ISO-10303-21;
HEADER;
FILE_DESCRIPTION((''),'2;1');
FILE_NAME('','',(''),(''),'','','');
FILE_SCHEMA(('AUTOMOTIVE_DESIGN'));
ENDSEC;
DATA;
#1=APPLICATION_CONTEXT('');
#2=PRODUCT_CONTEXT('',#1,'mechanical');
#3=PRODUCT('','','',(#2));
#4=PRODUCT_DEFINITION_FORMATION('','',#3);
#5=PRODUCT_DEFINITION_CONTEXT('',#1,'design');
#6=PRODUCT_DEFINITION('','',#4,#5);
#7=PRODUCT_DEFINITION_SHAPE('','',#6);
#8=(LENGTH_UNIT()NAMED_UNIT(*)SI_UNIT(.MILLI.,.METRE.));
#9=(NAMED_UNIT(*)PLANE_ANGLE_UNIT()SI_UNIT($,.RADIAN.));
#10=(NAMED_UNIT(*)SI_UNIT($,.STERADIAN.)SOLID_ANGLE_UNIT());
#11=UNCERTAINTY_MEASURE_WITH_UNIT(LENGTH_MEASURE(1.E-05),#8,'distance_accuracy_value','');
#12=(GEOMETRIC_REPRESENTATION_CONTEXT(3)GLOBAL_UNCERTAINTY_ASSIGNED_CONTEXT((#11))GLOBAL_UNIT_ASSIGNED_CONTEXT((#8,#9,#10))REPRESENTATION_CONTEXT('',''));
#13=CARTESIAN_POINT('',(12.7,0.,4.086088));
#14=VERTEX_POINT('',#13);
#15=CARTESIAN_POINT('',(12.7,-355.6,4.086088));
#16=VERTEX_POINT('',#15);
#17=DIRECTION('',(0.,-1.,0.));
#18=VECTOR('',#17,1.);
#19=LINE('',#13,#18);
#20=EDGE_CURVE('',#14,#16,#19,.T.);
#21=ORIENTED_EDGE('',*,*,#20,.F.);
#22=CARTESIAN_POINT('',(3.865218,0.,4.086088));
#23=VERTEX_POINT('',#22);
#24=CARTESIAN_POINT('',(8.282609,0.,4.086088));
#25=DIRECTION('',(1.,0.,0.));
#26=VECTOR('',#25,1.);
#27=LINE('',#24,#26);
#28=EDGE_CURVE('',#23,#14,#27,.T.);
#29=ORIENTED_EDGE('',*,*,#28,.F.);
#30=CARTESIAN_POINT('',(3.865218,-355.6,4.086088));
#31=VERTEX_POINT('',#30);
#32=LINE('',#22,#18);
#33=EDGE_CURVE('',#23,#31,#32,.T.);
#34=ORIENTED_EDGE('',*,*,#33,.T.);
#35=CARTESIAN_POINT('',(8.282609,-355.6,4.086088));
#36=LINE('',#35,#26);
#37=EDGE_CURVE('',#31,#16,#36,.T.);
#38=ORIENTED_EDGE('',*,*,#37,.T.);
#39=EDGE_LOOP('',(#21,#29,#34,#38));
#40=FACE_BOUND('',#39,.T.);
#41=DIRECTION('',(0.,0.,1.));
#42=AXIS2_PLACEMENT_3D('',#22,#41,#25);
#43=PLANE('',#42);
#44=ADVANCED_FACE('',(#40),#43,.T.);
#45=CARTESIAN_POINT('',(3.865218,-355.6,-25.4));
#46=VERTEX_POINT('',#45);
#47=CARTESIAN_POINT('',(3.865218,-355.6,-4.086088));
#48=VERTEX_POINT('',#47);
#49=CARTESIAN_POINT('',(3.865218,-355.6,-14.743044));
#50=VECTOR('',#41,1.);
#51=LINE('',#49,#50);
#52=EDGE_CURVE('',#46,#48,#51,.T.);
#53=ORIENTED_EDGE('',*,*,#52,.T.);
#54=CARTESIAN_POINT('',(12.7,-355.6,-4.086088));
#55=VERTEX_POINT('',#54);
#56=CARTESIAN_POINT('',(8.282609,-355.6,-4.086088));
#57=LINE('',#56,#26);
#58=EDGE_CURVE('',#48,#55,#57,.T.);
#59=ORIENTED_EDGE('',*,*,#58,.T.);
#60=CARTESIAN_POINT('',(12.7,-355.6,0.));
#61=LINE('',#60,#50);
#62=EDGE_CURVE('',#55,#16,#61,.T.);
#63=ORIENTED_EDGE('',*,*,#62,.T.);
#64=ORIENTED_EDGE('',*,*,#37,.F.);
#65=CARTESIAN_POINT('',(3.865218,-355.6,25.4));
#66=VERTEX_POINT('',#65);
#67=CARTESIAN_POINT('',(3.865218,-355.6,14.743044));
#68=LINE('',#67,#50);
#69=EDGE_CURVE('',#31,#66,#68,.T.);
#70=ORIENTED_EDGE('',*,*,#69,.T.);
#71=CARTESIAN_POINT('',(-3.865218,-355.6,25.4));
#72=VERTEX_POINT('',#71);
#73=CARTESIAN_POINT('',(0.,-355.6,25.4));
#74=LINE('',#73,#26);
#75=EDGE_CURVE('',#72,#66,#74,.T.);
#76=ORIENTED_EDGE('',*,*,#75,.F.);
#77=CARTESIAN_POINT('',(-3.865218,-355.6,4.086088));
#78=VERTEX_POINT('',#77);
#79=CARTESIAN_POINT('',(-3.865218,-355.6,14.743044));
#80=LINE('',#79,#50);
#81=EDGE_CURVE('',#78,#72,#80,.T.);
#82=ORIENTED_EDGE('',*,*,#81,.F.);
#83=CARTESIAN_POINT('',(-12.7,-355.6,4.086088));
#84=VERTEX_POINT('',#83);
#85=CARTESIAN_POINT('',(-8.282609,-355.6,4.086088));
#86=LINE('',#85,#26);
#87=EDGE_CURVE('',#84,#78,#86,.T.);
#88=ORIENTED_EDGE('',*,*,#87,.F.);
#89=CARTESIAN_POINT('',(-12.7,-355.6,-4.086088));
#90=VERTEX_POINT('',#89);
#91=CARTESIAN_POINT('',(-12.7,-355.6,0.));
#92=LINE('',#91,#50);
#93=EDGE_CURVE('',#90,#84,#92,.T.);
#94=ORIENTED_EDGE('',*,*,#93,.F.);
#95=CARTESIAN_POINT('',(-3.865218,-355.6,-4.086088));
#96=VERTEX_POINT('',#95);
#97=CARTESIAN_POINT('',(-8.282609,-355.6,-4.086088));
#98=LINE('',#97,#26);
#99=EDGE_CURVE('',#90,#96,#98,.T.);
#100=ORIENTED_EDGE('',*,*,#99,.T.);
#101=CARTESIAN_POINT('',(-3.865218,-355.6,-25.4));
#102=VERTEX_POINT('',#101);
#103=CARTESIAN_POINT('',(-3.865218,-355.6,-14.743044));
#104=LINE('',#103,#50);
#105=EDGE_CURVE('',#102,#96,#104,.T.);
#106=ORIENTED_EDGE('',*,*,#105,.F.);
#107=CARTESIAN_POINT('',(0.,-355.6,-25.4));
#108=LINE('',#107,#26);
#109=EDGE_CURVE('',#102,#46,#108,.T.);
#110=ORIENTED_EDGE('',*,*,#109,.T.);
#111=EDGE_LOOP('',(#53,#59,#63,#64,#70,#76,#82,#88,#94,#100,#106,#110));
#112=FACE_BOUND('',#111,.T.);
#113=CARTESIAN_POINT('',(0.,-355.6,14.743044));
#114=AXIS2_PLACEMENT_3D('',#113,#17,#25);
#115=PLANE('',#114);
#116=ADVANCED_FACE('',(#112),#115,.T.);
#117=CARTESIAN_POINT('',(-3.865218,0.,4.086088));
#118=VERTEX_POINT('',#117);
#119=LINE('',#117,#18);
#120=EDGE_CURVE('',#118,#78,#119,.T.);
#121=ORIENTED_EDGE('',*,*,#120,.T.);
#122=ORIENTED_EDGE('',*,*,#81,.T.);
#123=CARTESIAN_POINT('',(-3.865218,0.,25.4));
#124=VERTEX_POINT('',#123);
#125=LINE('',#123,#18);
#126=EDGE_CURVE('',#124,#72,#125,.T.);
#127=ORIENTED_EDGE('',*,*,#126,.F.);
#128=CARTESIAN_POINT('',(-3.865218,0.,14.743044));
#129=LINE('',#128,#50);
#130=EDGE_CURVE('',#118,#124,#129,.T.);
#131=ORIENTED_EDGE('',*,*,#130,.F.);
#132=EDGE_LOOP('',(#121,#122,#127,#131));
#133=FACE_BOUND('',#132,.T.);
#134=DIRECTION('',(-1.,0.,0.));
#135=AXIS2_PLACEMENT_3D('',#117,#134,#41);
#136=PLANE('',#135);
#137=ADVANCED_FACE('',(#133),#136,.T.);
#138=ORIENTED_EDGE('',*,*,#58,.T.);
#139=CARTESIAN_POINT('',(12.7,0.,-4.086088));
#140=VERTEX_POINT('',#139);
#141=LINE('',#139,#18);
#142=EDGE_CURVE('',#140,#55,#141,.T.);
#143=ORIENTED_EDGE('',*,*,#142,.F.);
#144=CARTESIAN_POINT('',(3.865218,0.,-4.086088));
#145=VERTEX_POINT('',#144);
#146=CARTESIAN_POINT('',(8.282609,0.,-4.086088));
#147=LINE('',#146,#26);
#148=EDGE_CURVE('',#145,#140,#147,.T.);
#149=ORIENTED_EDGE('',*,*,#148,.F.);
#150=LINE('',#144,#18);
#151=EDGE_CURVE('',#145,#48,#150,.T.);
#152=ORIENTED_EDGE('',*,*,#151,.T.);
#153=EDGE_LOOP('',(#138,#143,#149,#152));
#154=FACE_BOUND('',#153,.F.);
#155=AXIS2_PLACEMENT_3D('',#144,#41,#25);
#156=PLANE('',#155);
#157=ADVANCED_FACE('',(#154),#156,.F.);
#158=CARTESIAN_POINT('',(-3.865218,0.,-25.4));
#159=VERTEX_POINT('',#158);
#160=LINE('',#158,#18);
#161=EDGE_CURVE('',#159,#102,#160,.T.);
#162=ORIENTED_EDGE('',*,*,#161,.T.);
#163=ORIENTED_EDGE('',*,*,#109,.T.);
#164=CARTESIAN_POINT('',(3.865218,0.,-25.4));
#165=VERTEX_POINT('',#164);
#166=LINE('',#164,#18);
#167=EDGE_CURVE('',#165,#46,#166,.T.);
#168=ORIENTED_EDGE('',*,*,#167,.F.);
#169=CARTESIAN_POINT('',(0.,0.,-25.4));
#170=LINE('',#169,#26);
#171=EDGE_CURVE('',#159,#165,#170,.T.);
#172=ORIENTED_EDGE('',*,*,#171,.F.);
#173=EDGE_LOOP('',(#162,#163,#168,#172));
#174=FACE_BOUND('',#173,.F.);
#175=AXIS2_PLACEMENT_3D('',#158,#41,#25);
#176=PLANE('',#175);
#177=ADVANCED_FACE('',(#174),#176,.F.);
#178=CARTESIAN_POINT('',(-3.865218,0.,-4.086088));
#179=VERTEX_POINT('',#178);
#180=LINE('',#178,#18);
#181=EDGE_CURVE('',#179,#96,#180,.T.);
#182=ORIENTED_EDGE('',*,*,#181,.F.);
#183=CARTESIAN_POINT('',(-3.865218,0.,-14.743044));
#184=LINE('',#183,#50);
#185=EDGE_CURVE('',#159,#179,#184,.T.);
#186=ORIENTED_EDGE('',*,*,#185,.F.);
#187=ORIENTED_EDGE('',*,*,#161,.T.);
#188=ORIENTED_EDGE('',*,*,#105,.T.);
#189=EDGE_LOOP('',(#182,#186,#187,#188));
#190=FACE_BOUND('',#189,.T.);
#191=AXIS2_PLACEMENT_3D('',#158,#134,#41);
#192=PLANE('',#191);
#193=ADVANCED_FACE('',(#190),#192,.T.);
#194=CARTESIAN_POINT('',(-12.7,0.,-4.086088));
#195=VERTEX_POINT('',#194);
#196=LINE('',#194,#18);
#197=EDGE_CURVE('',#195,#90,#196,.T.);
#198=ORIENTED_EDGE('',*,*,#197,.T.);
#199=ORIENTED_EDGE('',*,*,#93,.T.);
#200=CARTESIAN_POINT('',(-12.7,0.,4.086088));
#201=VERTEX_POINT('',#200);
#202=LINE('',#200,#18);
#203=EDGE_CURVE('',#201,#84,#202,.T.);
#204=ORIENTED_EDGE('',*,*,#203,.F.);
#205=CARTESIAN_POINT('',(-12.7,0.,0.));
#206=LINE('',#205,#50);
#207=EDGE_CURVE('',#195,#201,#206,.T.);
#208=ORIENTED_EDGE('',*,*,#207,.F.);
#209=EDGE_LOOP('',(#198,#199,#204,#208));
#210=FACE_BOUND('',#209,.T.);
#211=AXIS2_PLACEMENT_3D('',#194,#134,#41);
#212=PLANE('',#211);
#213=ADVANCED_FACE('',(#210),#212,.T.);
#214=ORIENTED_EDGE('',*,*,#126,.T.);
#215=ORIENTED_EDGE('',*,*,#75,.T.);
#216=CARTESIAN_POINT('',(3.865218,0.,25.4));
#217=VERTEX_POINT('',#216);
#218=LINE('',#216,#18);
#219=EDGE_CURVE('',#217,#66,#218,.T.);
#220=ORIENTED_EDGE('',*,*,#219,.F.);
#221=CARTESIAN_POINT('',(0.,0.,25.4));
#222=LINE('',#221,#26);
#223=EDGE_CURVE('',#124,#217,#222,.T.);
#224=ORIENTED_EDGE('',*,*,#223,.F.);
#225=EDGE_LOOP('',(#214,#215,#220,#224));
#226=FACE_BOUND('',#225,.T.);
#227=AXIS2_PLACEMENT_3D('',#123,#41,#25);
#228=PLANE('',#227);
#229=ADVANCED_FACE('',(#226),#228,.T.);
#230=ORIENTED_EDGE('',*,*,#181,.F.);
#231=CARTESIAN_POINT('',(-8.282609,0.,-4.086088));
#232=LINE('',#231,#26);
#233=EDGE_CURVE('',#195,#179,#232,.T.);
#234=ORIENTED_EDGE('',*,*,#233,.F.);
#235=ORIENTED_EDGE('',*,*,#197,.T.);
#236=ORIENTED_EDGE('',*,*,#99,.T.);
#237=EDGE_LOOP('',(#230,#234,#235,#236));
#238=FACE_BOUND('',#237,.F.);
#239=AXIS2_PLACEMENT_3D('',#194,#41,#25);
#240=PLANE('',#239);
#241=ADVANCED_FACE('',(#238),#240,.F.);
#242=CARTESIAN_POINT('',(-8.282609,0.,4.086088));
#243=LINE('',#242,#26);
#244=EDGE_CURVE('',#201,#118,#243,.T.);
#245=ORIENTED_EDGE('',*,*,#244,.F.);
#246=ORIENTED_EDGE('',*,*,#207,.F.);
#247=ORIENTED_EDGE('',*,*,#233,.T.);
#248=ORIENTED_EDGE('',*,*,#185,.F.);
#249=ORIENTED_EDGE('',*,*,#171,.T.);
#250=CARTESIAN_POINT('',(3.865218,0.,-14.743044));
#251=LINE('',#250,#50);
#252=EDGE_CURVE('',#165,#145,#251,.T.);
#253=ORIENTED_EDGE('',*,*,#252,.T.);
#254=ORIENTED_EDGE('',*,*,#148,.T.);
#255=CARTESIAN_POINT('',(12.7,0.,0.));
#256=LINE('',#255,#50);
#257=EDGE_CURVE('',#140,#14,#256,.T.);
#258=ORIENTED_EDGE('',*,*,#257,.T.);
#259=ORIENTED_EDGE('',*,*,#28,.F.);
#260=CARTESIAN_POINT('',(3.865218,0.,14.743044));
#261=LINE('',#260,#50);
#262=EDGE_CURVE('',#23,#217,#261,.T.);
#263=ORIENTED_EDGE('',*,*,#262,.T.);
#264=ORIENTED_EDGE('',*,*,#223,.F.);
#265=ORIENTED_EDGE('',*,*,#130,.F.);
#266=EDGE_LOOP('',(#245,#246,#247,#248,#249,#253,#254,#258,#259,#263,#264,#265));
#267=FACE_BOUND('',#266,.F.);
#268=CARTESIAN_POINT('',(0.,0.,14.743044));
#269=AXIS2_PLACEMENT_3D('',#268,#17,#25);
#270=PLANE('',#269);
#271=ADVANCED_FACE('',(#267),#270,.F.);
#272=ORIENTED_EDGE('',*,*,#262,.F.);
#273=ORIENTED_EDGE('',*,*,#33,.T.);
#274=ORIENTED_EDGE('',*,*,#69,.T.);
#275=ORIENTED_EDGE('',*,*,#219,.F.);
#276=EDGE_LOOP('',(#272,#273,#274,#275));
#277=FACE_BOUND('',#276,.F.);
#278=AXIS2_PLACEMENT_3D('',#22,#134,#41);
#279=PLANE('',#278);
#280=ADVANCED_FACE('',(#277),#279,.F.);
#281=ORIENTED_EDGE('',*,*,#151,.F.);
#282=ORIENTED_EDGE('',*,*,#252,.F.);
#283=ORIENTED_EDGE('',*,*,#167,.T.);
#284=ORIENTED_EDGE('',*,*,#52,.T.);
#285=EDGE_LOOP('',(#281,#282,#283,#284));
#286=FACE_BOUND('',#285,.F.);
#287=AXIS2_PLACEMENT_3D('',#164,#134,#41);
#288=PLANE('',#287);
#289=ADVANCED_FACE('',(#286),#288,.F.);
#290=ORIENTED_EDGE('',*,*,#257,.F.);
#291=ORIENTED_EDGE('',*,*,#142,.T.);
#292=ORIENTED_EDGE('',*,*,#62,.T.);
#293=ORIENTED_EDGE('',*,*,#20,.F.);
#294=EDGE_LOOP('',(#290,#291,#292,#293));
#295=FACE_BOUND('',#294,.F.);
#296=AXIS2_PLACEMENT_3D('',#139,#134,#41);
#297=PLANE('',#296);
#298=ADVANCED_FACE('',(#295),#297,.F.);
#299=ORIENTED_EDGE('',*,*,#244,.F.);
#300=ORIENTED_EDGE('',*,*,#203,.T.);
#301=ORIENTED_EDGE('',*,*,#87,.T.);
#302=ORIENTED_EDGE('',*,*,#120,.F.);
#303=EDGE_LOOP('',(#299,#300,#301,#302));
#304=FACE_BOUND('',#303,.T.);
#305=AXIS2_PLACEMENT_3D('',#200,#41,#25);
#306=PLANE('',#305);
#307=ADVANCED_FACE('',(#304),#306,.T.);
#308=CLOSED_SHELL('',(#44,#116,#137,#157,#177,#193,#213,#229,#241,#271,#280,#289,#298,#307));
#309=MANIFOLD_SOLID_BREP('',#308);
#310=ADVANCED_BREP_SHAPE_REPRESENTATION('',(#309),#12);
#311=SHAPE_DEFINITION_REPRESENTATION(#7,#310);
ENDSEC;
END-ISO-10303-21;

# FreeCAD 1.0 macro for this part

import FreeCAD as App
import Part
import Sketcher
from FreeCAD import Vector
Q = App.Units.Quantity

doc = App.newDocument("Part")
params = doc.addObject("Spreadsheet::Sheet", "Params")
for row, (alias, value) in enumerate([
    ("pad1_length", "14 in"),
], start=1):
    params.set(f"A{row}", alias)
    params.set(f"B{row}", "=" + value)
    params.setAlias(f"B{row}", alias)

body = doc.addObject("PartDesign::Body", "Body")

sketch1 = body.newObject("Sketcher::SketchObject", "Sketch")
sketch1.AttachmentSupport = (doc.getObject("XZ_Plane"), [""])
sketch1.MapMode = "FlatFace"
sketch1.addGeometry([
    Part.LineSegment(Vector(-4, 25, 0), Vector(-4, 4, 0)),
    Part.LineSegment(Vector(-4, 4, 0), Vector(-13, 4, 0)),
    Part.LineSegment(Vector(-13, 4, 0), Vector(-13, -4, 0)),
    Part.LineSegment(Vector(-13, -4, 0), Vector(-4, -4, 0)),
    Part.LineSegment(Vector(-4, -4, 0), Vector(-4, -25, 0)),
    Part.LineSegment(Vector(-4, -25, 0), Vector(4, -25, 0)),
    Part.LineSegment(Vector(4, -25, 0), Vector(4, -4, 0)),
    Part.LineSegment(Vector(4, -4, 0), Vector(13, -4, 0)),
    Part.LineSegment(Vector(13, -4, 0), Vector(13, 4, 0)),
    Part.LineSegment(Vector(13, 4, 0), Vector(4, 4, 0)),
    Part.LineSegment(Vector(4, 4, 0), Vector(4, 25, 0)),
    Part.LineSegment(Vector(4, 25, 0), Vector(-4, 25, 0)),
], False)
sketch1.addConstraint([
    Sketcher.Constraint("Coincident", 0, 2, 1, 1),
    Sketcher.Constraint("Coincident", 1, 2, 2, 1),
    Sketcher.Constraint("Coincident", 2, 2, 3, 1),
    Sketcher.Constraint("Coincident", 3, 2, 4, 1),
    Sketcher.Constraint("Coincident", 4, 2, 5, 1),
    Sketcher.Constraint("Coincident", 5, 2, 6, 1),
    Sketcher.Constraint("Coincident", 6, 2, 7, 1),
    Sketcher.Constraint("Coincident", 7, 2, 8, 1),
    Sketcher.Constraint("Coincident", 8, 2, 9, 1),
    Sketcher.Constraint("Coincident", 9, 2, 10, 1),
    Sketcher.Constraint("Coincident", 10, 2, 11, 1),
    Sketcher.Constraint("Coincident", 11, 2, 0, 1),
    Sketcher.Constraint("Vertical", 0),
    Sketcher.Constraint("Horizontal", 1),
    Sketcher.Constraint("Vertical", 2),
    Sketcher.Constraint("Horizontal", 3),
    Sketcher.Constraint("Vertical", 4),
    Sketcher.Constraint("Horizontal", 5),
    Sketcher.Constraint("Vertical", 6),
    Sketcher.Constraint("Horizontal", 7),
    Sketcher.Constraint("Vertical", 8),
    Sketcher.Constraint("Horizontal", 9),
    Sketcher.Constraint("Vertical", 10),
    Sketcher.Constraint("Horizontal", 11),
    Sketcher.Constraint("Symmetric", 0, 2, 6, 2, -1, 1),
    Sketcher.Constraint("Symmetric", 2, 2, 8, 2, -1, 1),
    Sketcher.Constraint("Symmetric", 4, 2, 10, 2, -1, 1),
    Sketcher.Constraint("Symmetric", 3, 2, 6, 2, -2),
    Sketcher.Constraint("DistanceY", 4, 2, -1, 1, Q("1 in")),
    Sketcher.Constraint("DistanceX", 2, 2, 7, 2, Q("1 in")),
    Sketcher.Constraint("DistanceY", 0, 2, 0, 1, Q("21.313912 mm")),
    Sketcher.Constraint("DistanceX", 1, 2, 1, 1, Q("8.834782 mm")),
])
pad1 = body.newObject("PartDesign::Pad", "Pad")
pad1.Profile = sketch1
pad1.setExpression("Length", "Params.pad1_length")

doc.recompute()
